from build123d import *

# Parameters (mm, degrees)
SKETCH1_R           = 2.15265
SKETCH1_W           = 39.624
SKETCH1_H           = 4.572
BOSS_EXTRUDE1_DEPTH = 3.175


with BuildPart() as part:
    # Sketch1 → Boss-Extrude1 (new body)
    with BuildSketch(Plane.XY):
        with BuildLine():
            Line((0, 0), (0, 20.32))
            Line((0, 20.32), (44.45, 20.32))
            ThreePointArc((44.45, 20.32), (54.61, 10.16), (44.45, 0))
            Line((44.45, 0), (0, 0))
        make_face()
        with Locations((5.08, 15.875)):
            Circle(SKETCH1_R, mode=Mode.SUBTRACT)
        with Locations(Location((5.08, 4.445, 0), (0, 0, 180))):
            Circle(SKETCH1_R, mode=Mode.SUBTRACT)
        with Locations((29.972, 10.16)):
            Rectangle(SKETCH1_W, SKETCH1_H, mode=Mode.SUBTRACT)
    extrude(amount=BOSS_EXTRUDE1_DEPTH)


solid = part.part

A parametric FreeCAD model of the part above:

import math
import FreeCAD as App
import Part
import Sketcher

V = App.Vector
Q = App.Units.Quantity


def add_polygon(sketch, points):
    """Adds a closed chain of lines whose ends are joined by coincident constraints."""
    first, n = sketch.GeometryCount, len(points)
    for a, b in zip(points, points[1:] + points[:1]):
        sketch.addGeometry(Part.LineSegment(App.Vector(*a, 0), App.Vector(*b, 0)), False)
    for i in range(n):
        sketch.addConstraint(Sketcher.Constraint("Coincident", first + i, 2, first + (i + 1) % n, 1))

doc = App.newDocument("Part")
body = doc.addObject("PartDesign::Body", "Body")

# Sketch on XY plane
sketch1 = body.newObject("Sketcher::SketchObject", "Sketch")
sketch1.AttachmentSupport = (doc.getObject("XY_Plane"), [""])
sketch1.MapMode = "FlatFace"
sketch1.addGeometry(Part.LineSegment(V(0, 20.3, 0), V(0, 0, 0)), False)  # 0
sketch1.addGeometry(Part.LineSegment(V(0, 0, 0), V(44.5, 0, 0)), False)  # 1
sketch1.addGeometry(Part.ArcOfCircle(Part.Circle(V(44.5, 10.2, 0), V(0, 0, 1), 10.2), math.radians(-90), math.radians(90)), False)  # 2
sketch1.addGeometry(Part.LineSegment(V(44.5, 20.3, 0), V(0, 20.3, 0)), False)  # 3
sketch1.addGeometry(Part.Circle(V(5.1, 4.4, 0), V(0, 0, 1), 2.2), False)  # 4
add_polygon(sketch1, [(10.2, 7.9), (10.2, 12.4), (49.8, 12.4), (49.8, 7.9)])  # lines 5-8
sketch1.addGeometry(Part.Circle(V(5.1, 15.9, 0), V(0, 0, 1), 2.2), False)  # 9
sketch1.addConstraint(Sketcher.Constraint("Coincident", 0, 2, 1, 1))
sketch1.addConstraint(Sketcher.Constraint("Tangent", 1, 2, 2, 1))
sketch1.addConstraint(Sketcher.Constraint("Tangent", 2, 2, 3, 1))
sketch1.addConstraint(Sketcher.Constraint("Coincident", 3, 2, 0, 1))
sketch1.addConstraint(Sketcher.Constraint("Vertical", 0))
sketch1.addConstraint(Sketcher.Constraint("Horizontal", 1))
sketch1.addConstraint(Sketcher.Constraint("Horizontal", 3))
sketch1.addConstraint(Sketcher.Constraint("Vertical", 5))
sketch1.addConstraint(Sketcher.Constraint("Horizontal", 6))
sketch1.addConstraint(Sketcher.Constraint("Vertical", 7))
sketch1.addConstraint(Sketcher.Constraint("Horizontal", 8))
sketch1.addConstraint(Sketcher.Constraint("Coincident", 0, 2, -1, 1))
sketch1.addConstraint(Sketcher.Constraint("Equal", 4, 9))
sketch1.addConstraint(Sketcher.Constraint("Vertical", 4, 3, 9, 3))
sketch1.addConstraint(Sketcher.Constraint("Radius", 2, Q("0.4 in")))
sketch1.addConstraint(Sketcher.Constraint("Diameter", 4, Q("0.1695 in")))
sketch1.addConstraint(Sketcher.Constraint("DistanceX", 1, 1, 1, 2, Q("1.75 in")))
sketch1.addConstraint(Sketcher.Constraint("DistanceX", 6, 1, 6, 2, Q("1.56 in")))
sketch1.addConstraint(Sketcher.Constraint("DistanceY", 5, 1, 5, 2, Q("0.18 in")))
sketch1.addConstraint(Sketcher.Constraint("DistanceX", -1, 1, 4, 3, Q("0.2 in")))
sketch1.addConstraint(Sketcher.Constraint("DistanceX", -1, 1, 5, 2, Q("0.4 in")))
sketch1.addConstraint(Sketcher.Constraint("DistanceY", -1, 1, 5, 2, Q("0.49 in")))
sketch1.addConstraint(Sketcher.Constraint("DistanceY", 4, 3, 9, 3, Q("0.45 in")))
sketch1.addConstraint(Sketcher.Constraint("DistanceY", -1, 1, 4, 3, Q("0.175 in")))
pad1 = body.newObject("PartDesign::Pad", "Pad")
pad1.Profile = sketch1
pad1.Length = Q("0.125 in")

doc.recompute()
